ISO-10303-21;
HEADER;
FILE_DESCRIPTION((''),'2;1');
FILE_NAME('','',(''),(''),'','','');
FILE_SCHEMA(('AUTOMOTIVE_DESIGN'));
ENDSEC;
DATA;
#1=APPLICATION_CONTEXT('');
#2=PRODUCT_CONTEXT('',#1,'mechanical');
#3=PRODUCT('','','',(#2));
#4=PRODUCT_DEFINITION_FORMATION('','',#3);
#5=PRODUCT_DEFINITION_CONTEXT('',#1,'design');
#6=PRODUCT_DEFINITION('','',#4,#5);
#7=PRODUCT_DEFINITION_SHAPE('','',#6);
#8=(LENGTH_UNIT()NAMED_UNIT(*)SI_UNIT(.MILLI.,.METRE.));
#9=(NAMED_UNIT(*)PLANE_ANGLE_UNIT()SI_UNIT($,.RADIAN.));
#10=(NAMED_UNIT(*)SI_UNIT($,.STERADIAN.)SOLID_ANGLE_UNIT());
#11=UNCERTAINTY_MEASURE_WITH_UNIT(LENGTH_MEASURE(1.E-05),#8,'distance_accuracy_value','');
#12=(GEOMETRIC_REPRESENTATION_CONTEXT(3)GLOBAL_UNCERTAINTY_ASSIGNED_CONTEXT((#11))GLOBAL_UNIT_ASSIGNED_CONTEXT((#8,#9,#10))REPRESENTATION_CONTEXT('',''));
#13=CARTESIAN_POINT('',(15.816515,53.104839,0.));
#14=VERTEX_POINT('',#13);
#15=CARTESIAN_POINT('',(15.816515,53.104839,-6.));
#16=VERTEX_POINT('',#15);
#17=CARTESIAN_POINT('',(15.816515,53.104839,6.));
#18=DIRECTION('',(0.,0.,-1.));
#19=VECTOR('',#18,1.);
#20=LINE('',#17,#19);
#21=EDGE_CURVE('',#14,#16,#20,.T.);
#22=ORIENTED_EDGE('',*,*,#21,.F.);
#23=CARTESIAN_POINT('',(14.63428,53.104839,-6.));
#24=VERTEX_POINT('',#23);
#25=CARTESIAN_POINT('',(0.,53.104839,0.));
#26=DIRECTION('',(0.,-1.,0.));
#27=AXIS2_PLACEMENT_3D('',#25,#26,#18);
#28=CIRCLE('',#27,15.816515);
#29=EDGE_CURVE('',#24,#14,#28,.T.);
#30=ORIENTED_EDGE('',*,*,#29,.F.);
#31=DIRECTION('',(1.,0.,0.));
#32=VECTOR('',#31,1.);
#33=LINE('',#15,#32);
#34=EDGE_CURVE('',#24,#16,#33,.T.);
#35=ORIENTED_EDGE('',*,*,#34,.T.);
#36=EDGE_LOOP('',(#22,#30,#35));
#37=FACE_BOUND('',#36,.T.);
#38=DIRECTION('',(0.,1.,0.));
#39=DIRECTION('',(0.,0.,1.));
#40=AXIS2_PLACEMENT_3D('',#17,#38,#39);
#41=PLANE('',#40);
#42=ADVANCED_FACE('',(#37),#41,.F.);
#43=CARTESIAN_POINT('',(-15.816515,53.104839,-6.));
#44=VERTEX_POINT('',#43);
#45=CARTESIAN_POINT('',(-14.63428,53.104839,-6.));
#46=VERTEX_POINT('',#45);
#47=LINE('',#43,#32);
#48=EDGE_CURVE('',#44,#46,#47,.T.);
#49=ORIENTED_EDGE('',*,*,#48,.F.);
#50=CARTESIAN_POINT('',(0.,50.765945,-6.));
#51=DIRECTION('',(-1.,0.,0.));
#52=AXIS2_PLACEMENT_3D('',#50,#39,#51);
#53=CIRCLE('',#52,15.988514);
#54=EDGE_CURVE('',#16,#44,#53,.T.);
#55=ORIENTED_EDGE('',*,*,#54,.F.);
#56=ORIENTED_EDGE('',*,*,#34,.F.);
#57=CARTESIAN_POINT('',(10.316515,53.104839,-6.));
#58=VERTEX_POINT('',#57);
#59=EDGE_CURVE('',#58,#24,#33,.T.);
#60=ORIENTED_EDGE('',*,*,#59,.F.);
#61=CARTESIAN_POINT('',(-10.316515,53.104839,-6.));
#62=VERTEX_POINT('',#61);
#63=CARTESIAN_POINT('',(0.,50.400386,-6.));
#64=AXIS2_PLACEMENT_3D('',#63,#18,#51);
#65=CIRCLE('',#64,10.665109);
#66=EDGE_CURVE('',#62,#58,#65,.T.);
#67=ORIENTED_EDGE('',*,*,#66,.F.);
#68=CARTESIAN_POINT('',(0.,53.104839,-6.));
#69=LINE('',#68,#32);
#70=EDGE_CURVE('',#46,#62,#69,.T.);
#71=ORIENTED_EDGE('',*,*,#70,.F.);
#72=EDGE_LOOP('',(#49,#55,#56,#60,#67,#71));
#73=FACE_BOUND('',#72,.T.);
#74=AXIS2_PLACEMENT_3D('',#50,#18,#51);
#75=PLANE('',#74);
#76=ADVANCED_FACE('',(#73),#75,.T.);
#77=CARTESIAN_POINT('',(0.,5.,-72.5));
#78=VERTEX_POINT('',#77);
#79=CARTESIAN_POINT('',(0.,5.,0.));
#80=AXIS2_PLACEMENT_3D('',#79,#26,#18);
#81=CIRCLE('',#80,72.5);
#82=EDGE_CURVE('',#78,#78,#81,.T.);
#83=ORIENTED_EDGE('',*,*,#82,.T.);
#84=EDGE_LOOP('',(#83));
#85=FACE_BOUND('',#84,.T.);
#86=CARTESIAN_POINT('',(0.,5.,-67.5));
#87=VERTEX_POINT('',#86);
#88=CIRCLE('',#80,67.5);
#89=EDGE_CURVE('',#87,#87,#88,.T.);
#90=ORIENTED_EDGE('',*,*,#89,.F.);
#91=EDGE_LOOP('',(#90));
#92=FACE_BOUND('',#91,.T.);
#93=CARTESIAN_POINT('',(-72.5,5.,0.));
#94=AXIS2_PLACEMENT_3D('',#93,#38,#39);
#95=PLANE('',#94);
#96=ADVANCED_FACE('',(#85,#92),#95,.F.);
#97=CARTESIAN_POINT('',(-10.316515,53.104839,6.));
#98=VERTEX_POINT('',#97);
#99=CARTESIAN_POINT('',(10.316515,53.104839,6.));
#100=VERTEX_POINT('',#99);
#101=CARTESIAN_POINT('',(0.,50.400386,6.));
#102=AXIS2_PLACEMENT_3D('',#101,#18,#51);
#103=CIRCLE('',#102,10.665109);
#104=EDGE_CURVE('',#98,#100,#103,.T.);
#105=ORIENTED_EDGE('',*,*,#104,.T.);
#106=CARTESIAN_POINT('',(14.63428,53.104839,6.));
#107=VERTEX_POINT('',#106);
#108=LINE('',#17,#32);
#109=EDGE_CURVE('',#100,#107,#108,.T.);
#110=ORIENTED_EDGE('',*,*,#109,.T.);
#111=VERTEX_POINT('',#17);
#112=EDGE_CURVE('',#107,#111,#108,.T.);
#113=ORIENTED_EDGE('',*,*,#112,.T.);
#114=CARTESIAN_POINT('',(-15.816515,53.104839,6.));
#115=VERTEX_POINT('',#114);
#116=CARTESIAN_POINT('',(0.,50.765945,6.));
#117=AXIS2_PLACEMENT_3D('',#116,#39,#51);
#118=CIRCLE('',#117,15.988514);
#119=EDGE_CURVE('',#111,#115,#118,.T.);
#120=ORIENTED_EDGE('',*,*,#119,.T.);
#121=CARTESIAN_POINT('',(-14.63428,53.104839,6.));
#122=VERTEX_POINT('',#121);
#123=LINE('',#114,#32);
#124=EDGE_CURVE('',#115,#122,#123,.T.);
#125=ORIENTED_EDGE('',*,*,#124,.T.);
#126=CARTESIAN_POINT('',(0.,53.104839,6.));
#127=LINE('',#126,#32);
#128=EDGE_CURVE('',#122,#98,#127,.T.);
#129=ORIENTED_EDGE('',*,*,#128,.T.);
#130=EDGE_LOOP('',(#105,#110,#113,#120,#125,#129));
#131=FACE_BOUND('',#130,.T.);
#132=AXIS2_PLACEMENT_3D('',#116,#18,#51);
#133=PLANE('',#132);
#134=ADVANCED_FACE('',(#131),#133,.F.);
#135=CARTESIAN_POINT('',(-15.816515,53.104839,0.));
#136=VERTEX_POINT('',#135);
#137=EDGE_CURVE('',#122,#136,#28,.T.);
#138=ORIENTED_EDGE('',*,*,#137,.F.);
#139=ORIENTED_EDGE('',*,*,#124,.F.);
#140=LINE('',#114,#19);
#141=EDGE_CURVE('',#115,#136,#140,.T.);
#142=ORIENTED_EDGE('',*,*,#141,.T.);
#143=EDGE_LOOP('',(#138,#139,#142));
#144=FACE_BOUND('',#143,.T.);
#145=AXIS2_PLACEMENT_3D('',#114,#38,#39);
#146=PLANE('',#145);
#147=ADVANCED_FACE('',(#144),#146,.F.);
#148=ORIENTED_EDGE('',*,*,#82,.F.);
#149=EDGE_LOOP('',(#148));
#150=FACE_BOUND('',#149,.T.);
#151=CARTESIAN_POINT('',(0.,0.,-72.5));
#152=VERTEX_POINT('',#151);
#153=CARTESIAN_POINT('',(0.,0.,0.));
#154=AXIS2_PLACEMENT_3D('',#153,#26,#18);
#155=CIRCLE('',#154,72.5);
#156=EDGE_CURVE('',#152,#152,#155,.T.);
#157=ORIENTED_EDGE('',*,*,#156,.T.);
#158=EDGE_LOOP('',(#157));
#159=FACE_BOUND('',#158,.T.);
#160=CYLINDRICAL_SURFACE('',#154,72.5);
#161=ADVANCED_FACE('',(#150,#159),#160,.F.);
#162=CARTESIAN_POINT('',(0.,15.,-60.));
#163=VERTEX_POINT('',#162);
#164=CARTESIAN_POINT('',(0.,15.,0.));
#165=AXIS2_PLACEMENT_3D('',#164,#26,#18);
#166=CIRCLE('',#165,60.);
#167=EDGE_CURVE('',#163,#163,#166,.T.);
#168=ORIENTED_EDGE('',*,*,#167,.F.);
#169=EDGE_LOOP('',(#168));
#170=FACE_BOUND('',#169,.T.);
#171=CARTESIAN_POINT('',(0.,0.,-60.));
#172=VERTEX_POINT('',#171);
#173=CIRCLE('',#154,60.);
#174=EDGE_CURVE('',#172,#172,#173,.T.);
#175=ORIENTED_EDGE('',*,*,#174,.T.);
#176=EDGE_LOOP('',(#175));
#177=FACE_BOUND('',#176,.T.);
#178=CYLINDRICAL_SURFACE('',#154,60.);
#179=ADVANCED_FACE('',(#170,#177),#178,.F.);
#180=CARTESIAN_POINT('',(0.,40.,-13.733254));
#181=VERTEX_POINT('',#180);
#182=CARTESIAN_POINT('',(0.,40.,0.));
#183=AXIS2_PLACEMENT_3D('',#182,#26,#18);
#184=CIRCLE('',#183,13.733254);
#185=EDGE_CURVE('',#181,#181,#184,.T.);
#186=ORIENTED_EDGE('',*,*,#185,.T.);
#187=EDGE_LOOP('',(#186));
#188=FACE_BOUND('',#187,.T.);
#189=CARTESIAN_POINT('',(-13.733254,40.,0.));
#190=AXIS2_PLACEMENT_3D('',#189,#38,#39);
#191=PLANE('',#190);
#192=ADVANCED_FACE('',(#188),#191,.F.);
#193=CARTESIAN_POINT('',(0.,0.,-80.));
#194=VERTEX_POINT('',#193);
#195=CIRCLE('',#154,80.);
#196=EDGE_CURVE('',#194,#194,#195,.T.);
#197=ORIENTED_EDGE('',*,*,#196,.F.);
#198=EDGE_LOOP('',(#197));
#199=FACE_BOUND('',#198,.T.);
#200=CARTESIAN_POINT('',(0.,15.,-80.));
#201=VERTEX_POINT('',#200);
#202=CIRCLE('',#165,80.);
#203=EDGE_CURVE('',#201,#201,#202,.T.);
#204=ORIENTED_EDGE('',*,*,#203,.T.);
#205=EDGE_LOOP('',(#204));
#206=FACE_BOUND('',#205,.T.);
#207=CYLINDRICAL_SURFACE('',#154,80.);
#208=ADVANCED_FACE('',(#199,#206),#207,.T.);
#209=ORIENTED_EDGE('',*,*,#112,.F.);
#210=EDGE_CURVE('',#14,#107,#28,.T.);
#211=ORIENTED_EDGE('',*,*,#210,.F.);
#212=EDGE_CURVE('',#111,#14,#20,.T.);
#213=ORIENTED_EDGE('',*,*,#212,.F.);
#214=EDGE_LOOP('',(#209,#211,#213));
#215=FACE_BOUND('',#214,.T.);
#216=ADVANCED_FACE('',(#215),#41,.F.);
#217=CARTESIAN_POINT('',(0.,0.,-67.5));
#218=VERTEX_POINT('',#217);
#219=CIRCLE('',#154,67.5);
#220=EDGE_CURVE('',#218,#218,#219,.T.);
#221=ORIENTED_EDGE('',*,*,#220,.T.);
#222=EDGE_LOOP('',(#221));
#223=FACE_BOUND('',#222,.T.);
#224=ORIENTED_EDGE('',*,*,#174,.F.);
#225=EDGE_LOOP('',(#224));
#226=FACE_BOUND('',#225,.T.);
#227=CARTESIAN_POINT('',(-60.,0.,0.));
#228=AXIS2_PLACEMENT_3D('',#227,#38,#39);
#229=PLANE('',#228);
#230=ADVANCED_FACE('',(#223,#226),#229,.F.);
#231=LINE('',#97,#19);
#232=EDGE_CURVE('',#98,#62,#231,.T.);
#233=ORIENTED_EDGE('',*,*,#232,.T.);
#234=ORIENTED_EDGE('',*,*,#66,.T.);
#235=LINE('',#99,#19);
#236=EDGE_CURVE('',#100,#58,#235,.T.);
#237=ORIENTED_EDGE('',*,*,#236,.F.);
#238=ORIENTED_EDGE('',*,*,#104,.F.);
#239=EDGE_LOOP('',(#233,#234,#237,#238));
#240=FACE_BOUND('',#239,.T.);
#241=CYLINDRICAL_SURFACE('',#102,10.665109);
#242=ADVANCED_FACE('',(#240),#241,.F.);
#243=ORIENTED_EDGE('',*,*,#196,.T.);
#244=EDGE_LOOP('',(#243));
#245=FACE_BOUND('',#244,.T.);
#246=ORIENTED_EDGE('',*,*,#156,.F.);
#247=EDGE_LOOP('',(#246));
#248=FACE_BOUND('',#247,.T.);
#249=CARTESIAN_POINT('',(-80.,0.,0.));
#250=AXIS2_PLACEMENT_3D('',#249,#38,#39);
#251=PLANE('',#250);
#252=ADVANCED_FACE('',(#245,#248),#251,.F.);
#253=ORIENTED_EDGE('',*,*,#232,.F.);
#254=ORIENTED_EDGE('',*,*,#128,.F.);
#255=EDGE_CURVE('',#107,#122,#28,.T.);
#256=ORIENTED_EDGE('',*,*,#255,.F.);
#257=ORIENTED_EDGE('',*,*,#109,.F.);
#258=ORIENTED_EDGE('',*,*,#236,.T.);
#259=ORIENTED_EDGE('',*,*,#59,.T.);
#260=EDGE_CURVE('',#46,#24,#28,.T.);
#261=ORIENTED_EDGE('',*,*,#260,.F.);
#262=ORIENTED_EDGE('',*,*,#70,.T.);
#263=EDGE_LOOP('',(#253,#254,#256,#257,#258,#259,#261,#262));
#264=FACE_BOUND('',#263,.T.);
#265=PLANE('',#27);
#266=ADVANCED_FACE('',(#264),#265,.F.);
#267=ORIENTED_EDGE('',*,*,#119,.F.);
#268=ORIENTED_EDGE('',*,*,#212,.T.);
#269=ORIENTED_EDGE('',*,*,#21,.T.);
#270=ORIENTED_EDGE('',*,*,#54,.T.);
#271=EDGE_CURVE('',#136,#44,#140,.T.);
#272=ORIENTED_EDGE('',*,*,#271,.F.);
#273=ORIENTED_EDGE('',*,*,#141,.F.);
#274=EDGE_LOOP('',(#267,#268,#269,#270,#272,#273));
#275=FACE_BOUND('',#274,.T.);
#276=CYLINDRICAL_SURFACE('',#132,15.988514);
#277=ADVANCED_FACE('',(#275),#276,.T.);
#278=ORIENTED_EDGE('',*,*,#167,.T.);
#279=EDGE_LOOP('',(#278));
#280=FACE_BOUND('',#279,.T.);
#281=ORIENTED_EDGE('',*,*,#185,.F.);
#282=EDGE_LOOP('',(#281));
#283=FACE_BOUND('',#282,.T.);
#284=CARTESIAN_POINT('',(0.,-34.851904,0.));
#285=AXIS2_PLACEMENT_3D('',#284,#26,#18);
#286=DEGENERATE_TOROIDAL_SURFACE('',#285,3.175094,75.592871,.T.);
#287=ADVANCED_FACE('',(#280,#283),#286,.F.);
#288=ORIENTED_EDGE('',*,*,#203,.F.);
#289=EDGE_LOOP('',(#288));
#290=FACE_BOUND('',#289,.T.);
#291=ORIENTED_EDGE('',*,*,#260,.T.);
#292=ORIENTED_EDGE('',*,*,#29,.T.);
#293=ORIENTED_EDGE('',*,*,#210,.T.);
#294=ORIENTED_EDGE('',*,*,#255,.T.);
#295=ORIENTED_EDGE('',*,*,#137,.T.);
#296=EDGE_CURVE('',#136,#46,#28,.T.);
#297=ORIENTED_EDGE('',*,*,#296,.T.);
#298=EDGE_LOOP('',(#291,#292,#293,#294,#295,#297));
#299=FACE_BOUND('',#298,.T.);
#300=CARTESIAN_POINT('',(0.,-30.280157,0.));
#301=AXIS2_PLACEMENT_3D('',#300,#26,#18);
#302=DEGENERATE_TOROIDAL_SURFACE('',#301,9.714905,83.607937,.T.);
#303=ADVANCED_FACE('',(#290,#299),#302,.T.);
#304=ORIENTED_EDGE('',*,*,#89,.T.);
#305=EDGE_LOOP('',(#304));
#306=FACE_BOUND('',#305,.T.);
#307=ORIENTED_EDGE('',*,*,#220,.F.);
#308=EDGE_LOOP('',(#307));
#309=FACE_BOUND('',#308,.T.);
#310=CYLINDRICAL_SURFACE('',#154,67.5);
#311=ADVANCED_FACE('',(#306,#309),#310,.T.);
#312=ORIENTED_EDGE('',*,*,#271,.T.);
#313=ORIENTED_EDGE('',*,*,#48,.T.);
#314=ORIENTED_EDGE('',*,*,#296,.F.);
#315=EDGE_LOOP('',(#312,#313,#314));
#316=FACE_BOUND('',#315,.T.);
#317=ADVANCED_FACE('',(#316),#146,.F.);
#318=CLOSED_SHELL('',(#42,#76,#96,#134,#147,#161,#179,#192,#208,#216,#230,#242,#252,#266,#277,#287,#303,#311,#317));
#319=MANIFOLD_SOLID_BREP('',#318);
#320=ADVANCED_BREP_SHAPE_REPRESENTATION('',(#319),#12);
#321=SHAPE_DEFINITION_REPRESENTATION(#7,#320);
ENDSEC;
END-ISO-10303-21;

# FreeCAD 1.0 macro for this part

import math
import FreeCAD as App
import Part
import Sketcher

V = App.Vector

doc = App.newDocument("Part")
body = doc.addObject("PartDesign::Body", "Body")

# Sketch on XY plane
sketch1 = body.newObject("Sketcher::SketchObject", "Sketch")
sketch1.AttachmentSupport = (doc.getObject("XY_Plane"), [""])
sketch1.MapMode = "FlatFace"
sketch1.addGeometry([
    Part.LineSegment(V(-80, 0, 0), V(-72.5, 0, 0)),  # 0
    Part.LineSegment(V(-72.5, 0, 0), V(-72.5, 5, 0)),  # 1
    Part.LineSegment(V(-72.5, 5, 0), V(-67.5, 5, 0)),  # 2
    Part.LineSegment(V(-67.5, 5, 0), V(-67.5, 0, 0)),  # 3
    Part.LineSegment(V(-67.5, 0, 0), V(-60, 0, 0)),  # 4
    Part.LineSegment(V(-60, 0, 0), V(-60, 15, 0)),  # 5
    Part.ArcOfCircle(Part.Circle(V(-3.175094, -34.851904, 0), V(0, 0, 1), 75.592871), math.radians(98.02883), math.radians(138.739857)),  # 6
    Part.LineSegment(V(-13.733254, 40, 0), V(0, 40, 0)),  # 7
    Part.LineSegment(V(0, 40, 0), V(0, 53.104839, 0)),  # 8
    Part.LineSegment(V(0, 53.104839, 0), V(-15.816515, 53.104839, 0)),  # 9
    Part.ArcOfCircle(Part.Circle(V(-9.714905, -30.280157, 0), V(0, 0, 1), 83.607937), math.radians(94.1851), math.radians(147.208926)),  # 10
    Part.LineSegment(V(-80, 15, 0), V(-80, 0, 0)),  # 11
], False)
sketch1.addConstraint([
    Sketcher.Constraint("Coincident", 0, 2, 1, 1),
    Sketcher.Constraint("Coincident", 1, 2, 2, 1),
    Sketcher.Constraint("Coincident", 2, 2, 3, 1),
    Sketcher.Constraint("Coincident", 3, 2, 4, 1),
    Sketcher.Constraint("Coincident", 4, 2, 5, 1),
    Sketcher.Constraint("Coincident", 5, 2, 6, 2),
    Sketcher.Constraint("Coincident", 6, 1, 7, 1),
    Sketcher.Constraint("Coincident", 7, 2, 8, 1),
    Sketcher.Constraint("Coincident", 8, 2, 9, 1),
    Sketcher.Constraint("Coincident", 9, 2, 10, 1),
    Sketcher.Constraint("Coincident", 10, 2, 11, 1),
    Sketcher.Constraint("Coincident", 11, 2, 0, 1),
    Sketcher.Constraint("Horizontal", 0),
    Sketcher.Constraint("Vertical", 1),
    Sketcher.Constraint("Horizontal", 2),
    Sketcher.Constraint("Vertical", 3),
    Sketcher.Constraint("Horizontal", 4),
    Sketcher.Constraint("Vertical", 5),
    Sketcher.Constraint("Horizontal", 7),
    Sketcher.Constraint("Vertical", 8),
    Sketcher.Constraint("Horizontal", 9),
    Sketcher.Constraint("Vertical", 11),
    Sketcher.Constraint("PointOnObject", 0, 2, -1),
    Sketcher.Constraint("PointOnObject", 3, 2, -1),
    Sketcher.Constraint("PointOnObject", 7, 2, -2),
    Sketcher.Constraint("Horizontal", 5, 2, 10, 2),
    Sketcher.Constraint("Equal", 0, 4),
    Sketcher.Constraint("Equal", 2, 1),
    Sketcher.Constraint("DistanceX", 2, 1, 2, 2, 5.0),
    Sketcher.Constraint("DistanceY", 5, 1, 5, 2, 15.0),
    Sketcher.Constraint("DistanceX", 0, 1, 0, 2, 7.5),
    Sketcher.Constraint("DistanceX", 4, 2, -1, 1, 60.0),
    Sketcher.Constraint("DistanceY", -1, 1, 6, 1, 40.0),
    Sketcher.Constraint("Radius", 6, 75.592871),
    Sketcher.Constraint("Radius", 10, 83.607937),
    Sketcher.Constraint("DistanceY", 8, 1, 8, 2, 13.104839),
    Sketcher.Constraint("DistanceX", 7, 1, 7, 2, 13.733254),
    Sketcher.Constraint("DistanceX", 9, 2, 9, 1, 15.816515),
])
revolution = body.newObject("PartDesign::Revolution", "Revolution")
revolution.Profile = sketch1
revolution.ReferenceAxis = (sketch1, ["V_Axis"])
revolution.Angle = 360

# Sketch on XY plane
sketch2 = body.newObject("Sketcher::SketchObject", "Sketch001")
sketch2.AttachmentSupport = (doc.getObject("XY_Plane"), [""])
sketch2.MapMode = "FlatFace"
sketch2.addGeometry([
    Part.LineSegment(V(10.316515, 53.104839, 0), V(15.816515, 53.104839, 0)),
    Part.ArcOfCircle(Part.Circle(V(0, 50.765945, 0), V(0, 0, 1), 15.988514), math.radians(8.411749), math.radians(171.588251)),
    Part.LineSegment(V(-15.816515, 53.104839, 0), V(-10.316515, 53.104839, 0)),
    Part.ArcOfCircle(Part.Circle(V(0, 50.400386, 0), V(0, 0, 1), 10.665109), math.radians(14.689431), math.radians(165.310569)),
], False)
sketch2.addConstraint([
    Sketcher.Constraint("Coincident", 0, 2, 1, 1),
    Sketcher.Constraint("Coincident", 1, 2, 2, 1),
    Sketcher.Constraint("Coincident", 2, 2, 3, 2),
    Sketcher.Constraint("Coincident", 3, 1, 0, 1),
    Sketcher.Constraint("Horizontal", 0),
    Sketcher.Constraint("Horizontal", 2),
    Sketcher.Constraint("Symmetric", 0, 2, 1, 2, -2),
    Sketcher.Constraint("PointOnObject", 3, 3, -2),
    Sketcher.Constraint("DistanceX", 0, 1, 0, 2, 5.5),
    Sketcher.Constraint("Radius", 3, 10.665109),
    Sketcher.Constraint("Radius", 1, 15.988514),
    Sketcher.Constraint("DistanceY", -1, 1, 0, 2, 53.104839),
    Sketcher.Constraint("DistanceY", 3, 3, 1, 3, 0.365559),
])
pad1 = body.newObject("PartDesign::Pad", "Pad")
pad1.Profile = sketch2
pad1.Length = 12
pad1.Midplane = True

doc.recompute()
